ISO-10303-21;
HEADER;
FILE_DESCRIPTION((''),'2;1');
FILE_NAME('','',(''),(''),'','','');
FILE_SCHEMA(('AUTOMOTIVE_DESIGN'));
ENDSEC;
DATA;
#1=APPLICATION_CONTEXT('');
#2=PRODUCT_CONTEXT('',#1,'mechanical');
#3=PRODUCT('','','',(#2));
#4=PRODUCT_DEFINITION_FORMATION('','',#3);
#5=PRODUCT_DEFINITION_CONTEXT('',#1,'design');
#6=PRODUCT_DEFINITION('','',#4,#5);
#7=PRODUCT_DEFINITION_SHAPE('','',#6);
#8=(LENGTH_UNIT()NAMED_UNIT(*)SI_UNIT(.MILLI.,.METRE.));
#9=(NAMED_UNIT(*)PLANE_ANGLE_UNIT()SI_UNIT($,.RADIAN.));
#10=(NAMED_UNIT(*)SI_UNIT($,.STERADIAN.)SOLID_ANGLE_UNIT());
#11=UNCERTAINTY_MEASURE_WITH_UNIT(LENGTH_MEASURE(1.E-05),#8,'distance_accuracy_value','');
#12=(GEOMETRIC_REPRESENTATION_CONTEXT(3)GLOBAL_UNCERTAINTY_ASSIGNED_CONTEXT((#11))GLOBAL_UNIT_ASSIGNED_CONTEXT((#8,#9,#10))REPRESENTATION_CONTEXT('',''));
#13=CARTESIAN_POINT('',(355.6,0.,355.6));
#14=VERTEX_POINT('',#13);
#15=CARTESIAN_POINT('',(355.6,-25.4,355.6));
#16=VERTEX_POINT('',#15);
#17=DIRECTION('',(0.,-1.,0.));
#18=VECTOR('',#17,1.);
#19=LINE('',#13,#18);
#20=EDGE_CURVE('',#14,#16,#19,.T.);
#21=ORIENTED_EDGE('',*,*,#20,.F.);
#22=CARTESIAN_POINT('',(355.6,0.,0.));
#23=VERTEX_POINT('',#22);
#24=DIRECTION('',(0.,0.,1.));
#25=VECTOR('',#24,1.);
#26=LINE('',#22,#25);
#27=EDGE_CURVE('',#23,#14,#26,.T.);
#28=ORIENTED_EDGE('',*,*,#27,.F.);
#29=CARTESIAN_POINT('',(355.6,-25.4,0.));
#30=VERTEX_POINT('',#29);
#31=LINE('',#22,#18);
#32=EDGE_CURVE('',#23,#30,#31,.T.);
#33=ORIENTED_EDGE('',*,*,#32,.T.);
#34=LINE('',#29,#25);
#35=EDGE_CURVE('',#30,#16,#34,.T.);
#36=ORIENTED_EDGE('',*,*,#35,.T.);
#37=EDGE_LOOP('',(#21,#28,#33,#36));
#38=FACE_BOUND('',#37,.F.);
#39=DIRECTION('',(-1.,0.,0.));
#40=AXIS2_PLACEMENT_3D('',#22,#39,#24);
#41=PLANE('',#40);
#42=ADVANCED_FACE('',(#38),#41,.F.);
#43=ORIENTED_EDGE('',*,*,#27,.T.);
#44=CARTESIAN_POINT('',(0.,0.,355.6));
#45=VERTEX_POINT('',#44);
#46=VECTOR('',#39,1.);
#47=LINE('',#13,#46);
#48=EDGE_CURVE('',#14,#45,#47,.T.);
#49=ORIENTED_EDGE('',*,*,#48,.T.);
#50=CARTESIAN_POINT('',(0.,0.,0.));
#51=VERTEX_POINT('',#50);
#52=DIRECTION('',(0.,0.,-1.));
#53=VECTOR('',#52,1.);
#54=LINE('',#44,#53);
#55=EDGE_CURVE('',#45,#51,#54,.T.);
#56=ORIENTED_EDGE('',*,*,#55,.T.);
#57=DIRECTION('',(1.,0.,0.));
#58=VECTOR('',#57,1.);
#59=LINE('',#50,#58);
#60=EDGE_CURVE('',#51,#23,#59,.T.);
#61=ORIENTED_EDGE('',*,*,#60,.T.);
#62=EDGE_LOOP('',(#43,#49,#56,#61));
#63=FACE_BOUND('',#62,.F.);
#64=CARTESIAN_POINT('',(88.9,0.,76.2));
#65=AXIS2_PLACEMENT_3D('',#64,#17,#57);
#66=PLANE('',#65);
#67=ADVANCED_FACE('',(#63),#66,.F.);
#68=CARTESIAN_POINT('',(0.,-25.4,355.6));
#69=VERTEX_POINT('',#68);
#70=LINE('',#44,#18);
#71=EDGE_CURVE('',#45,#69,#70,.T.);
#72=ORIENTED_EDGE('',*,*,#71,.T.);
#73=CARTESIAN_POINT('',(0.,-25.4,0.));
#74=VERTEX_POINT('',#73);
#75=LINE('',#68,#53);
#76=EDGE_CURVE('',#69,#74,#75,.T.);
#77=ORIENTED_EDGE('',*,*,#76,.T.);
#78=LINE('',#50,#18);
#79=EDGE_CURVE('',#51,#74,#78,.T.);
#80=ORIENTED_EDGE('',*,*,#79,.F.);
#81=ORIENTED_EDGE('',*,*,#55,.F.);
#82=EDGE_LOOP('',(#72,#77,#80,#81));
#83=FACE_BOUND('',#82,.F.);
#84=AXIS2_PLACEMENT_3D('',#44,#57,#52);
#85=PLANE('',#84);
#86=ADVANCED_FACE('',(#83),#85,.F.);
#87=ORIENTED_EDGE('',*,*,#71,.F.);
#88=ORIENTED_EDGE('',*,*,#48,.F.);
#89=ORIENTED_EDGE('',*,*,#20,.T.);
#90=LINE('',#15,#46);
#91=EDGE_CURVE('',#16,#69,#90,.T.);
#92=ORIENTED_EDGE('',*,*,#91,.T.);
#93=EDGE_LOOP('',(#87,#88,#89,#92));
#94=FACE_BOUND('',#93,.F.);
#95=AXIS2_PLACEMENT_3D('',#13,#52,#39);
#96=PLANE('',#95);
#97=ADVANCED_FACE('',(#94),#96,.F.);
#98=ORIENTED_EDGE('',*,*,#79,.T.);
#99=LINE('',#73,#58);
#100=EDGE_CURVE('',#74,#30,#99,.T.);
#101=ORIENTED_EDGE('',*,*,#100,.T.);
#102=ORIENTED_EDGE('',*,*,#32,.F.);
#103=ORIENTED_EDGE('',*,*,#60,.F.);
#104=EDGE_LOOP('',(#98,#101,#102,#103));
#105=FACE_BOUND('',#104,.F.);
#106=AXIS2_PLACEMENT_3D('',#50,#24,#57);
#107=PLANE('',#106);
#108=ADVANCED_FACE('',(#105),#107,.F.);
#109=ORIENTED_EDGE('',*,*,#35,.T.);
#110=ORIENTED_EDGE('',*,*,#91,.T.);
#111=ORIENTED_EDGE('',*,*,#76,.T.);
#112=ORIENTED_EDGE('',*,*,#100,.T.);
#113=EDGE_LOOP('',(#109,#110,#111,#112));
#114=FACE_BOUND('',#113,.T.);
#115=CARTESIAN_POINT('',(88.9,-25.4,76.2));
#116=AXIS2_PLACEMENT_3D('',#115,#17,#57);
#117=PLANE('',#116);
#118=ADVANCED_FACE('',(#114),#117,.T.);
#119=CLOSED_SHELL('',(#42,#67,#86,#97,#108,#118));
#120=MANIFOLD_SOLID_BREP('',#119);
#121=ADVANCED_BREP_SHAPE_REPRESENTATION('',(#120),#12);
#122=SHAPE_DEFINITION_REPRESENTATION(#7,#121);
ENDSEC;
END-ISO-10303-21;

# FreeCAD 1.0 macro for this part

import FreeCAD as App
import Part
import Sketcher

V = App.Vector
Q = App.Units.Quantity


def add_polygon(sketch, points):
    """Adds a closed chain of lines whose ends are joined by coincident constraints."""
    first, n = sketch.GeometryCount, len(points)
    for a, b in zip(points, points[1:] + points[:1]):
        sketch.addGeometry(Part.LineSegment(App.Vector(*a, 0), App.Vector(*b, 0)), False)
    for i in range(n):
        sketch.addConstraint(Sketcher.Constraint("Coincident", first + i, 2, first + (i + 1) % n, 1))

doc = App.newDocument("Part")
params = doc.addObject("Spreadsheet::Sheet", "Params")
for row, (alias, value) in enumerate([
    ("sketch1_width", "14 in"),
    ("pad1_length", "1 in"),
], start=1):
    params.set(f"A{row}", alias)
    params.set(f"B{row}", "=" + value)
    params.setAlias(f"B{row}", alias)

body = doc.addObject("PartDesign::Body", "Body")

sketch1 = body.newObject("Sketcher::SketchObject", "Sketch")
sketch1.AttachmentSupport = (doc.getObject("XZ_Plane"), [""])
sketch1.MapMode = "FlatFace"
add_polygon(sketch1, [(0, 0), (356, 0), (356, 356), (0, 356)])
sketch1.addConstraint([
    Sketcher.Constraint("Horizontal", 0),
    Sketcher.Constraint("Vertical", 1),
    Sketcher.Constraint("Horizontal", 2),
    Sketcher.Constraint("Vertical", 3),
    Sketcher.Constraint("Coincident", 3, 2, -1, 1),
    Sketcher.Constraint("Equal", 2, 1),
    Sketcher.Constraint("DistanceX", 0, 1, 0, 2, Q("14 in")),
])
sketch1.setExpression("Constraints[10]", "Params.sketch1_width")
pad1 = body.newObject("PartDesign::Pad", "Pad")
pad1.Profile = sketch1
pad1.setExpression("Length", "Params.pad1_length")

doc.recompute()
